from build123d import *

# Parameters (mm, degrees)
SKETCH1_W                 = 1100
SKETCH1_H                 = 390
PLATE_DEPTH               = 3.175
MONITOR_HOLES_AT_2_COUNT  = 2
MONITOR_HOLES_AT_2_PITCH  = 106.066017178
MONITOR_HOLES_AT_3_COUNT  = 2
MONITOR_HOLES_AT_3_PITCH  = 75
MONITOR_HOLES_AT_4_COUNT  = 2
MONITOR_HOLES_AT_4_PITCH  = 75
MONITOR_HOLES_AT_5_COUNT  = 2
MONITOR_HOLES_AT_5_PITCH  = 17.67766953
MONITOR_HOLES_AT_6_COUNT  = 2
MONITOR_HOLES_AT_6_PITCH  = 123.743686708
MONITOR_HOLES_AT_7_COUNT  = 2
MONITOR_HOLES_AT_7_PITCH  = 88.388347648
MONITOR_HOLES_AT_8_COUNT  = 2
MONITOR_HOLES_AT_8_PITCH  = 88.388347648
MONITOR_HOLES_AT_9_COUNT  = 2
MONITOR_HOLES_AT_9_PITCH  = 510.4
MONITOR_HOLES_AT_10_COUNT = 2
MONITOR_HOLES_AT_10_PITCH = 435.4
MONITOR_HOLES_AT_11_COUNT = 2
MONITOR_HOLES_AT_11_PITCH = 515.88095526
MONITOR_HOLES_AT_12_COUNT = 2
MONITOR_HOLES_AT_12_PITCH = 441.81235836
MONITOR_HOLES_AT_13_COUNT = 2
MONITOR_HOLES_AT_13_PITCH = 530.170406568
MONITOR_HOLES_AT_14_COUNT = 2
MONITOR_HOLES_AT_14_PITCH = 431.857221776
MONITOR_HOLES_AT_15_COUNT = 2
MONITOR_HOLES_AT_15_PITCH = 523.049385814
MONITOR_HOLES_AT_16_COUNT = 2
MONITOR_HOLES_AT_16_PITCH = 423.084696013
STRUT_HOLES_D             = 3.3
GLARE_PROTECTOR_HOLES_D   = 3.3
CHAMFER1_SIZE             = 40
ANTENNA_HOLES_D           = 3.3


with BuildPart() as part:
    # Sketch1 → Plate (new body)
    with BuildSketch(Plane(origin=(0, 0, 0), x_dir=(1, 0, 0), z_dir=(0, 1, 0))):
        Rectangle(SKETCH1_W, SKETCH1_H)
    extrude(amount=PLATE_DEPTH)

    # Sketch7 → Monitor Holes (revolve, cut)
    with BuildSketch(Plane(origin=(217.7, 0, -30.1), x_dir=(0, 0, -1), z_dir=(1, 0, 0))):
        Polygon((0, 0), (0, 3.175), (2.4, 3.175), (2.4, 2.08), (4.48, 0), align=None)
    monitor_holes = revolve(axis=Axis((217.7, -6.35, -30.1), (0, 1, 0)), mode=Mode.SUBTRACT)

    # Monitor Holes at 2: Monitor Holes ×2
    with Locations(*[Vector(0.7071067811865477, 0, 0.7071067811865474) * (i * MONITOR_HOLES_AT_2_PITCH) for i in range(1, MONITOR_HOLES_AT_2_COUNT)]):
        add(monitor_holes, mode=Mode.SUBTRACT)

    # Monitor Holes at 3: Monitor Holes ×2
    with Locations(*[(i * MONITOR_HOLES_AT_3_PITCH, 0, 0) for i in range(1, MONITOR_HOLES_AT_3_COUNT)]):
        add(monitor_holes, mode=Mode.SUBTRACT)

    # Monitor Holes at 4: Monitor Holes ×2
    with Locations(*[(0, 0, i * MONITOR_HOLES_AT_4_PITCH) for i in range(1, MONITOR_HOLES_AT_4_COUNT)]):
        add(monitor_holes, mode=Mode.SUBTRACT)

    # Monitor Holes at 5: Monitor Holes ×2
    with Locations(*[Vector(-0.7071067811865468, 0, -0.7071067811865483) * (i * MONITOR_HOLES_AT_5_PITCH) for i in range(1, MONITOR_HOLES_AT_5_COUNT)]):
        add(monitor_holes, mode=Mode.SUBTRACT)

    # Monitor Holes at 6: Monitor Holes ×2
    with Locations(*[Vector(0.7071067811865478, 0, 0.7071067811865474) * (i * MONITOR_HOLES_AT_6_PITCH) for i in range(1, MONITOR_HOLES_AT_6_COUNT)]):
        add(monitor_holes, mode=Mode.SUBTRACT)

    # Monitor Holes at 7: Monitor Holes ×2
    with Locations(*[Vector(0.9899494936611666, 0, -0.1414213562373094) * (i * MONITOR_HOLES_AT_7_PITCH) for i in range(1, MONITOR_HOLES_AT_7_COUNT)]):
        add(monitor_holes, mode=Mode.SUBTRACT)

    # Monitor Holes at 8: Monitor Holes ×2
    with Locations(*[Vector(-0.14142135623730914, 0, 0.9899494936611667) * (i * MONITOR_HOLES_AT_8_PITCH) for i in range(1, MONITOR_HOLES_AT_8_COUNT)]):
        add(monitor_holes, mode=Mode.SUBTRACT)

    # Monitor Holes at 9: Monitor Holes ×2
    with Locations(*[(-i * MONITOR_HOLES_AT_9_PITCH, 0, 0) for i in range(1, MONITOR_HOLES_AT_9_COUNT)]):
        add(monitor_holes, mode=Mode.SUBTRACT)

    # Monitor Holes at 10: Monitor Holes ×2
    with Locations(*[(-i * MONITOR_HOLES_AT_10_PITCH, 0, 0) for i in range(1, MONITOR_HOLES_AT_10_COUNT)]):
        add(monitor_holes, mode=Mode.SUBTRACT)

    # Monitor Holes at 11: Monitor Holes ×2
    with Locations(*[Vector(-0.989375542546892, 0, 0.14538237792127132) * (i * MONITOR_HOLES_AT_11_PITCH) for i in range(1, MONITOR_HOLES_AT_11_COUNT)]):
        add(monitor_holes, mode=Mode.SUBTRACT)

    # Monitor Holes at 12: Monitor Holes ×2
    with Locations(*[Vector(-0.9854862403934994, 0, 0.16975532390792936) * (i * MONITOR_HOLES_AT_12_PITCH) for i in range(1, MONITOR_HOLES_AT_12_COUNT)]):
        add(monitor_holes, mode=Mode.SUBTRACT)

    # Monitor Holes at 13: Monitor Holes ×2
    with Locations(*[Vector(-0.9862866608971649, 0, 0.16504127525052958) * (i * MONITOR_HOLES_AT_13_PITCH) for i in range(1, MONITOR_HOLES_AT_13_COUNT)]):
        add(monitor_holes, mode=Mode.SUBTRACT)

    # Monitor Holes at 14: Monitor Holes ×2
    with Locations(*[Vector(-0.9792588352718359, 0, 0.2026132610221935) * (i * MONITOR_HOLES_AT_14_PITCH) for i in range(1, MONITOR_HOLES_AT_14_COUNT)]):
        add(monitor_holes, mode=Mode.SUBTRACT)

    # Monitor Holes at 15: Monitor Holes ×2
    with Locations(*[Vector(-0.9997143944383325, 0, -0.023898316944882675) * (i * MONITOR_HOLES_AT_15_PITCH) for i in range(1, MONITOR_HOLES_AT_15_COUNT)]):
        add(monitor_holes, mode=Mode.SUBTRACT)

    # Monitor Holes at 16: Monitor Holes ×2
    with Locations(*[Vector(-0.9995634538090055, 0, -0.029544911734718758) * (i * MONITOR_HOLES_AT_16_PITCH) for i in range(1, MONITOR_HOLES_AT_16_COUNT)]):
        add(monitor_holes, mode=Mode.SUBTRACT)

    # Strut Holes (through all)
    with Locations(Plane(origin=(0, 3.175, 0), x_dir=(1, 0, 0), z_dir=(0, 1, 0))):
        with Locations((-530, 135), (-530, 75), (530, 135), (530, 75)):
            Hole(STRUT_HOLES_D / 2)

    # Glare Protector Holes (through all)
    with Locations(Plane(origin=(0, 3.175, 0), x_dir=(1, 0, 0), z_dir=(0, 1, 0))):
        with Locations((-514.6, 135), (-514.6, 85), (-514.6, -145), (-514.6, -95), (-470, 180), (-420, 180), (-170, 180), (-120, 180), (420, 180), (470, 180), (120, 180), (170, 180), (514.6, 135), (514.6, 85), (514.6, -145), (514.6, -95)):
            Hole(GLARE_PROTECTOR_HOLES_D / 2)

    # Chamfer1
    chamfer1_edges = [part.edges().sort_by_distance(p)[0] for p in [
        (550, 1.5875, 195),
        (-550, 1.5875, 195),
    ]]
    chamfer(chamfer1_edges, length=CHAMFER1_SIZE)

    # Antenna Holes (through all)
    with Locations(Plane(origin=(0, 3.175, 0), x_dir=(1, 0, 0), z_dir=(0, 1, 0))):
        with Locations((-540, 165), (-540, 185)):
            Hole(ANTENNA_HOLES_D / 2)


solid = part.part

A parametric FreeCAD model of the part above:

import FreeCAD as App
import Part
import Sketcher
from FreeCAD import Vector
Q = App.Units.Quantity


def edges_at(feature, points):
    """Names of the edges that pass closest to the given points."""
    edges = feature.Shape.Edges
    near = lambda p: min(range(len(edges)), key=lambda i: edges[i].distToShape(Part.Vertex(*p))[0])
    return sorted({f"Edge{near(p) + 1}" for p in points})


def add_polygon(sketch, points):
    """Adds a closed chain of lines whose ends are joined by coincident constraints."""
    first, n = sketch.GeometryCount, len(points)
    for a, b in zip(points, points[1:] + points[:1]):
        sketch.addGeometry(Part.LineSegment(App.Vector(*a, 0), App.Vector(*b, 0)), False)
    for i in range(n):
        sketch.addConstraint(Sketcher.Constraint("Coincident", first + i, 2, first + (i + 1) % n, 1))

doc = App.newDocument("Part")
params = doc.addObject("Spreadsheet::Sheet", "Params")
for row, (alias, value) in enumerate([
    ("sketch1_width", "1100 mm"),
    ("sketch1_height", "390 mm"),
    ("pad1_length", "3.175 mm"),
    ("sketch2_height", "2.4 mm"),
    ("sketch2_height2", "4.48 mm"),
    ("groove_angle", "360 deg"),
    ("linearpattern_pitch", "106.066017 mm"),
    ("linearpattern2_pitch", "75 mm"),
    ("linearpattern3_pitch", "75 mm"),
    ("linearpattern4_pitch", "17.67767 mm"),
    ("linearpattern5_pitch", "123.743687 mm"),
    ("linearpattern6_pitch", "88.388348 mm"),
    ("linearpattern7_pitch", "88.388348 mm"),
    ("linearpattern8_pitch", "510.4 mm"),
    ("linearpattern9_pitch", "435.4 mm"),
    ("linearpattern10_pitch", "515.880955 mm"),
    ("linearpattern11_pitch", "441.812358 mm"),
    ("linearpattern12_pitch", "530.170407 mm"),
    ("linearpattern13_pitch", "431.857222 mm"),
    ("linearpattern14_pitch", "523.049386 mm"),
    ("linearpattern15_pitch", "423.084696 mm"),
    ("sketch3_diameter", "3.3 mm"),
    ("hole_diameter", "3.3 mm"),
    ("sketch4_diameter", "3.3 mm"),
    ("hole2_diameter", "3.3 mm"),
    ("chamfer_size", "40 mm"),
    ("sketch5_diameter", "3.3 mm"),
    ("hole3_diameter", "3.3 mm"),
], start=1):
    params.set(f"A{row}", alias)
    params.set(f"B{row}", "=" + value)
    params.setAlias(f"B{row}", alias)

body = doc.addObject("PartDesign::Body", "Body")

sketch1 = body.newObject("Sketcher::SketchObject", "Sketch")
sketch1.AttachmentSupport = (doc.getObject("XZ_Plane"), [""])
sketch1.MapMode = "FlatFace"
add_polygon(sketch1, [(-550, -195), (-550, 195), (550, 195), (550, -195)])
sketch1.addConstraint([
    Sketcher.Constraint("Vertical", 0),
    Sketcher.Constraint("Horizontal", 1),
    Sketcher.Constraint("Vertical", 2),
    Sketcher.Constraint("Horizontal", 3),
    Sketcher.Constraint("Symmetric", 0, 2, 2, 2, -1, 1),
    Sketcher.Constraint("DistanceX", 1, 1, 1, 2, Q("1100 mm")),
    Sketcher.Constraint("DistanceY", 0, 1, 0, 2, Q("390 mm")),
])
sketch1.setExpression("Constraints[9]", "Params.sketch1_width")
sketch1.setExpression("Constraints[10]", "Params.sketch1_height")
pad1 = body.newObject("PartDesign::Pad", "Pad")
pad1.Profile = sketch1
pad1.setExpression("Length", "Params.pad1_length")
pad1.Reversed = True

sketch2 = body.newObject("Sketcher::SketchObject", "Sketch001")
sketch2.AttachmentSupport = (doc.getObject("YZ_Plane"), [""])
sketch2.MapMode = "FlatFace"
sketch2.AttachmentOffset = App.Placement(Vector(0, 0, 217.7), App.Rotation())
add_polygon(sketch2, [(3.175, -30.1), (0, -30.1), (0, -34.58), (2.08, -32.5), (3.175, -32.5)])
sketch2.addGeometry(Part.LineSegment(Vector(0, -30.1, 0), Vector(3.175, -30.1, 0)), True)
sketch2.addConstraint([
    Sketcher.Constraint("Horizontal", 0),
    Sketcher.Constraint("Vertical", 1),
    Sketcher.Constraint("Horizontal", 3),
    Sketcher.Constraint("Vertical", 4),
    Sketcher.Constraint("Horizontal", 5),
    Sketcher.Constraint("Coincident", 5, 1, 0, 2),
    Sketcher.Constraint("PointOnObject", 0, 2, -2),
    Sketcher.Constraint("Vertical", 3, 2, 5, 2),
    Sketcher.Constraint("Angle", 2, Q("45 deg")),
    Sketcher.Constraint("DistanceY", 4, 1, 4, 2, Q("2.4 mm")),
    Sketcher.Constraint("DistanceY", 1, 2, 1, 1, Q("4.48 mm")),
    Sketcher.Constraint("DistanceY", 0, 2, -1, 1, Q("30.1 mm")),
    Sketcher.Constraint("DistanceX", 0, 2, 0, 1, Q("3.175 mm")),
])
sketch2.setExpression("Constraints[14]", "Params.sketch2_height")
sketch2.setExpression("Constraints[15]", "Params.sketch2_height2")
groove = body.newObject("PartDesign::Groove", "Groove")
groove.Profile = sketch2
groove.ReferenceAxis = (sketch2, ["Axis0"])
groove.setExpression("Angle", "Params.groove_angle")
doc.recompute()

datumline = body.newObject("PartDesign::Line", "DatumLine")
datumline.Placement = App.Placement(Vector(0, 0, 0), App.Rotation(Vector(0, 0, 1), Vector(0.707106781, 0, 0.707106781)))
linearpattern = body.newObject("PartDesign::LinearPattern", "LinearPattern")
linearpattern.Originals = [groove]
linearpattern.Direction = (datumline, [""])
linearpattern.Mode = "offset"
linearpattern.setExpression("Offset", "Params.linearpattern_pitch")
linearpattern.Occurrences = 2
body.Tip = linearpattern
doc.recompute()

linearpattern2 = body.newObject("PartDesign::LinearPattern", "LinearPattern001")
linearpattern2.Originals = [groove]
linearpattern2.Direction = (doc.getObject("X_Axis"), [""])
linearpattern2.Mode = "offset"
linearpattern2.setExpression("Offset", "Params.linearpattern2_pitch")
linearpattern2.Occurrences = 2
body.Tip = linearpattern2
doc.recompute()

linearpattern3 = body.newObject("PartDesign::LinearPattern", "LinearPattern002")
linearpattern3.Originals = [groove]
linearpattern3.Direction = (doc.getObject("Z_Axis"), [""])
linearpattern3.Mode = "offset"
linearpattern3.setExpression("Offset", "Params.linearpattern3_pitch")
linearpattern3.Occurrences = 2
body.Tip = linearpattern3
doc.recompute()

datumline2 = body.newObject("PartDesign::Line", "DatumLine001")
datumline2.Placement = App.Placement(Vector(0, 0, 0), App.Rotation(Vector(0, 0, 1), Vector(-0.707106781, 0, -0.707106781)))
linearpattern4 = body.newObject("PartDesign::LinearPattern", "LinearPattern003")
linearpattern4.Originals = [groove]
linearpattern4.Direction = (datumline2, [""])
linearpattern4.Mode = "offset"
linearpattern4.setExpression("Offset", "Params.linearpattern4_pitch")
linearpattern4.Occurrences = 2
body.Tip = linearpattern4
doc.recompute()

datumline3 = body.newObject("PartDesign::Line", "DatumLine002")
datumline3.Placement = App.Placement(Vector(0, 0, 0), App.Rotation(Vector(0, 0, 1), Vector(0.707106781, 0, 0.707106781)))
linearpattern5 = body.newObject("PartDesign::LinearPattern", "LinearPattern004")
linearpattern5.Originals = [groove]
linearpattern5.Direction = (datumline3, [""])
linearpattern5.Mode = "offset"
linearpattern5.setExpression("Offset", "Params.linearpattern5_pitch")
linearpattern5.Occurrences = 2
body.Tip = linearpattern5
doc.recompute()

datumline4 = body.newObject("PartDesign::Line", "DatumLine003")
datumline4.Placement = App.Placement(Vector(0, 0, 0), App.Rotation(Vector(0, 0, 1), Vector(0.989949494, 0, -0.141421356)))
linearpattern6 = body.newObject("PartDesign::LinearPattern", "LinearPattern005")
linearpattern6.Originals = [groove]
linearpattern6.Direction = (datumline4, [""])
linearpattern6.Mode = "offset"
linearpattern6.setExpression("Offset", "Params.linearpattern6_pitch")
linearpattern6.Occurrences = 2
body.Tip = linearpattern6
doc.recompute()

datumline5 = body.newObject("PartDesign::Line", "DatumLine004")
datumline5.Placement = App.Placement(Vector(0, 0, 0), App.Rotation(Vector(0, 0, 1), Vector(-0.141421356, 0, 0.989949494)))
linearpattern7 = body.newObject("PartDesign::LinearPattern", "LinearPattern006")
linearpattern7.Originals = [groove]
linearpattern7.Direction = (datumline5, [""])
linearpattern7.Mode = "offset"
linearpattern7.setExpression("Offset", "Params.linearpattern7_pitch")
linearpattern7.Occurrences = 2
body.Tip = linearpattern7
doc.recompute()

linearpattern8 = body.newObject("PartDesign::LinearPattern", "LinearPattern007")
linearpattern8.Originals = [groove]
linearpattern8.Direction = (doc.getObject("X_Axis"), [""])
linearpattern8.Mode = "offset"
linearpattern8.setExpression("Offset", "Params.linearpattern8_pitch")
linearpattern8.Occurrences = 2
linearpattern8.Reversed = True
body.Tip = linearpattern8
doc.recompute()

linearpattern9 = body.newObject("PartDesign::LinearPattern", "LinearPattern008")
linearpattern9.Originals = [groove]
linearpattern9.Direction = (doc.getObject("X_Axis"), [""])
linearpattern9.Mode = "offset"
linearpattern9.setExpression("Offset", "Params.linearpattern9_pitch")
linearpattern9.Occurrences = 2
linearpattern9.Reversed = True
body.Tip = linearpattern9
doc.recompute()

datumline6 = body.newObject("PartDesign::Line", "DatumLine005")
datumline6.Placement = App.Placement(Vector(0, 0, 0), App.Rotation(Vector(0, 0, 1), Vector(-0.989375543, 0, 0.145382378)))
linearpattern10 = body.newObject("PartDesign::LinearPattern", "LinearPattern009")
linearpattern10.Originals = [groove]
linearpattern10.Direction = (datumline6, [""])
linearpattern10.Mode = "offset"
linearpattern10.setExpression("Offset", "Params.linearpattern10_pitch")
linearpattern10.Occurrences = 2
body.Tip = linearpattern10
doc.recompute()

datumline7 = body.newObject("PartDesign::Line", "DatumLine006")
datumline7.Placement = App.Placement(Vector(0, 0, 0), App.Rotation(Vector(0, 0, 1), Vector(-0.98548624, 0, 0.169755324)))
linearpattern11 = body.newObject("PartDesign::LinearPattern", "LinearPattern010")
linearpattern11.Originals = [groove]
linearpattern11.Direction = (datumline7, [""])
linearpattern11.Mode = "offset"
linearpattern11.setExpression("Offset", "Params.linearpattern11_pitch")
linearpattern11.Occurrences = 2
body.Tip = linearpattern11
doc.recompute()

datumline8 = body.newObject("PartDesign::Line", "DatumLine007")
datumline8.Placement = App.Placement(Vector(0, 0, 0), App.Rotation(Vector(0, 0, 1), Vector(-0.986286661, 0, 0.165041275)))
linearpattern12 = body.newObject("PartDesign::LinearPattern", "LinearPattern011")
linearpattern12.Originals = [groove]
linearpattern12.Direction = (datumline8, [""])
linearpattern12.Mode = "offset"
linearpattern12.setExpression("Offset", "Params.linearpattern12_pitch")
linearpattern12.Occurrences = 2
body.Tip = linearpattern12
doc.recompute()

datumline9 = body.newObject("PartDesign::Line", "DatumLine008")
datumline9.Placement = App.Placement(Vector(0, 0, 0), App.Rotation(Vector(0, 0, 1), Vector(-0.979258835, 0, 0.202613261)))
linearpattern13 = body.newObject("PartDesign::LinearPattern", "LinearPattern012")
linearpattern13.Originals = [groove]
linearpattern13.Direction = (datumline9, [""])
linearpattern13.Mode = "offset"
linearpattern13.setExpression("Offset", "Params.linearpattern13_pitch")
linearpattern13.Occurrences = 2
body.Tip = linearpattern13
doc.recompute()

datumline10 = body.newObject("PartDesign::Line", "DatumLine009")
datumline10.Placement = App.Placement(Vector(0, 0, 0), App.Rotation(Vector(0, 0, 1), Vector(-0.999714394, 0, -0.023898317)))
linearpattern14 = body.newObject("PartDesign::LinearPattern", "LinearPattern013")
linearpattern14.Originals = [groove]
linearpattern14.Direction = (datumline10, [""])
linearpattern14.Mode = "offset"
linearpattern14.setExpression("Offset", "Params.linearpattern14_pitch")
linearpattern14.Occurrences = 2
body.Tip = linearpattern14
doc.recompute()

datumline11 = body.newObject("PartDesign::Line", "DatumLine010")
datumline11.Placement = App.Placement(Vector(0, 0, 0), App.Rotation(Vector(0, 0, 1), Vector(-0.999563454, 0, -0.029544912)))
linearpattern15 = body.newObject("PartDesign::LinearPattern", "LinearPattern014")
linearpattern15.Originals = [groove]
linearpattern15.Direction = (datumline11, [""])
linearpattern15.Mode = "offset"
linearpattern15.setExpression("Offset", "Params.linearpattern15_pitch")
linearpattern15.Occurrences = 2
body.Tip = linearpattern15

sketch3 = body.newObject("Sketcher::SketchObject", "Sketch002")
sketch3.AttachmentSupport = (doc.getObject("XZ_Plane"), [""])
sketch3.MapMode = "FlatFace"
sketch3.AttachmentOffset = App.Placement(Vector(0, 0, -3.175), App.Rotation())
sketch3.addGeometry([
    Part.Circle(Vector(-530, -135, 0), Vector(0, 0, 1), 1.65),
    Part.Circle(Vector(-530, -75, 0), Vector(0, 0, 1), 1.65),
    Part.Circle(Vector(530, -135, 0), Vector(0, 0, 1), 1.65),
    Part.Circle(Vector(530, -75, 0), Vector(0, 0, 1), 1.65),
], False)
sketch3.addConstraint([
    Sketcher.Constraint("Equal", 0, 1),
    Sketcher.Constraint("Equal", 1, 2),
    Sketcher.Constraint("Equal", 2, 3),
    Sketcher.Constraint("Symmetric", 0, 3, 2, 3, -2),
    Sketcher.Constraint("Symmetric", 1, 3, 3, 3, -2),
    Sketcher.Constraint("Vertical", 0, 3, 1, 3),
    Sketcher.Constraint("Diameter", 0, Q("3.3 mm")),
    Sketcher.Constraint("DistanceX", 0, 3, -1, 1, Q("530 mm")),
    Sketcher.Constraint("DistanceY", 0, 3, -1, 1, Q("135 mm")),
    Sketcher.Constraint("DistanceY", 1, 3, -1, 1, Q("75 mm")),
])
sketch3.setExpression("Constraints[6]", "Params.sketch3_diameter")
doc.recompute()
hole = body.newObject("PartDesign::Hole", "Hole")
hole.Profile = sketch3
hole.ThreadType = "None"
hole.setExpression("Diameter", "Params.hole_diameter")
hole.DepthType = "ThroughAll"
hole.Reversed = True

sketch4 = body.newObject("Sketcher::SketchObject", "Sketch003")
sketch4.AttachmentSupport = (doc.getObject("XZ_Plane"), [""])
sketch4.MapMode = "FlatFace"
sketch4.AttachmentOffset = App.Placement(Vector(0, 0, -3.175), App.Rotation())
sketch4.addGeometry([
    Part.Circle(Vector(-514.6, -135, 0), Vector(0, 0, 1), 1.65),
    Part.Circle(Vector(-514.6, -85, 0), Vector(0, 0, 1), 1.65),
    Part.Circle(Vector(-514.6, 145, 0), Vector(0, 0, 1), 1.65),
    Part.Circle(Vector(-514.6, 95, 0), Vector(0, 0, 1), 1.65),
    Part.Circle(Vector(-470, -180, 0), Vector(0, 0, 1), 1.65),
    Part.Circle(Vector(-420, -180, 0), Vector(0, 0, 1), 1.65),
    Part.Circle(Vector(-170, -180, 0), Vector(0, 0, 1), 1.65),
    Part.Circle(Vector(-120, -180, 0), Vector(0, 0, 1), 1.65),
    Part.Circle(Vector(420, -180, 0), Vector(0, 0, 1), 1.65),
    Part.Circle(Vector(470, -180, 0), Vector(0, 0, 1), 1.65),
    Part.Circle(Vector(120, -180, 0), Vector(0, 0, 1), 1.65),
    Part.Circle(Vector(170, -180, 0), Vector(0, 0, 1), 1.65),
    Part.Circle(Vector(514.6, -135, 0), Vector(0, 0, 1), 1.65),
    Part.Circle(Vector(514.6, -85, 0), Vector(0, 0, 1), 1.65),
    Part.Circle(Vector(514.6, 145, 0), Vector(0, 0, 1), 1.65),
    Part.Circle(Vector(514.6, 95, 0), Vector(0, 0, 1), 1.65),
], False)
sketch4.addConstraint([
    Sketcher.Constraint("Equal", 0, 1),
    Sketcher.Constraint("Equal", 1, 2),
    Sketcher.Constraint("Equal", 2, 3),
    Sketcher.Constraint("Equal", 3, 4),
    Sketcher.Constraint("Equal", 4, 5),
    Sketcher.Constraint("Equal", 5, 6),
    Sketcher.Constraint("Equal", 6, 7),
    Sketcher.Constraint("Equal", 7, 8),
    Sketcher.Constraint("Equal", 8, 9),
    Sketcher.Constraint("Equal", 9, 10),
    Sketcher.Constraint("Equal", 10, 11),
    Sketcher.Constraint("Equal", 11, 12),
    Sketcher.Constraint("Equal", 12, 13),
    Sketcher.Constraint("Equal", 13, 14),
    Sketcher.Constraint("Equal", 14, 15),
    Sketcher.Constraint("Symmetric", 5, 3, 8, 3, -2),
    Sketcher.Constraint("Symmetric", 4, 3, 9, 3, -2),
    Sketcher.Constraint("Symmetric", 7, 3, 10, 3, -2),
    Sketcher.Constraint("Symmetric", 6, 3, 11, 3, -2),
    Sketcher.Constraint("Symmetric", 0, 3, 12, 3, -2),
    Sketcher.Constraint("Symmetric", 1, 3, 13, 3, -2),
    Sketcher.Constraint("Symmetric", 2, 3, 14, 3, -2),
    Sketcher.Constraint("Symmetric", 3, 3, 15, 3, -2),
    Sketcher.Constraint("Horizontal", 4, 3, 5, 3),
    Sketcher.Constraint("Horizontal", 5, 3, 6, 3),
    Sketcher.Constraint("Horizontal", 6, 3, 7, 3),
    Sketcher.Constraint("Vertical", 0, 3, 1, 3),
    Sketcher.Constraint("Vertical", 1, 3, 2, 3),
    Sketcher.Constraint("Vertical", 2, 3, 3, 3),
    Sketcher.Constraint("Diameter", 0, Q("3.3 mm")),
    Sketcher.Constraint("DistanceY", 0, 3, -1, 1, Q("135 mm")),
    Sketcher.Constraint("DistanceY", 1, 3, -1, 1, Q("85 mm")),
    Sketcher.Constraint("DistanceY", -1, 1, 2, 3, Q("145 mm")),
    Sketcher.Constraint("DistanceY", -1, 1, 3, 3, Q("95 mm")),
    Sketcher.Constraint("DistanceX", 4, 3, -1, 1, Q("470 mm")),
    Sketcher.Constraint("DistanceY", 4, 3, -1, 1, Q("180 mm")),
    Sketcher.Constraint("DistanceX", 5, 3, -1, 1, Q("420 mm")),
    Sketcher.Constraint("DistanceX", 6, 3, -1, 1, Q("170 mm")),
    Sketcher.Constraint("DistanceX", 7, 3, -1, 1, Q("120 mm")),
    Sketcher.Constraint("DistanceX", 0, 3, -1, 1, Q("514.6 mm")),
])
sketch4.setExpression("Constraints[29]", "Params.sketch4_diameter")
doc.recompute()
hole2 = body.newObject("PartDesign::Hole", "Hole001")
hole2.Profile = sketch4
hole2.ThreadType = "None"
hole2.setExpression("Diameter", "Params.hole2_diameter")
hole2.DepthType = "ThroughAll"
hole2.Reversed = True
doc.recompute()

chamfer = body.newObject("PartDesign::Chamfer", "Chamfer")
chamfer.Base = (hole2, edges_at(hole2, [(550, 1.587, 195), (-550, 1.587, 195)]))
chamfer.setExpression("Size", "Params.chamfer_size")

sketch5 = body.newObject("Sketcher::SketchObject", "Sketch004")
sketch5.AttachmentSupport = (doc.getObject("XZ_Plane"), [""])
sketch5.MapMode = "FlatFace"
sketch5.AttachmentOffset = App.Placement(Vector(0, 0, -3.175), App.Rotation())
sketch5.addGeometry([
    Part.Circle(Vector(-540, -165, 0), Vector(0, 0, 1), 1.65),
    Part.Circle(Vector(-540, -185, 0), Vector(0, 0, 1), 1.65),
], False)
sketch5.addConstraint([
    Sketcher.Constraint("Equal", 0, 1),
    Sketcher.Constraint("Vertical", 0, 3, 1, 3),
    Sketcher.Constraint("Diameter", 0, Q("3.3 mm")),
    Sketcher.Constraint("DistanceX", 0, 3, -1, 1, Q("540 mm")),
    Sketcher.Constraint("DistanceY", 0, 3, -1, 1, Q("165 mm")),
    Sketcher.Constraint("DistanceY", 1, 3, -1, 1, Q("185 mm")),
])
sketch5.setExpression("Constraints[2]", "Params.sketch5_diameter")
doc.recompute()
hole3 = body.newObject("PartDesign::Hole", "Hole002")
hole3.Profile = sketch5
hole3.ThreadType = "None"
hole3.setExpression("Diameter", "Params.hole3_diameter")
hole3.DepthType = "ThroughAll"
hole3.Reversed = True

doc.recompute()
